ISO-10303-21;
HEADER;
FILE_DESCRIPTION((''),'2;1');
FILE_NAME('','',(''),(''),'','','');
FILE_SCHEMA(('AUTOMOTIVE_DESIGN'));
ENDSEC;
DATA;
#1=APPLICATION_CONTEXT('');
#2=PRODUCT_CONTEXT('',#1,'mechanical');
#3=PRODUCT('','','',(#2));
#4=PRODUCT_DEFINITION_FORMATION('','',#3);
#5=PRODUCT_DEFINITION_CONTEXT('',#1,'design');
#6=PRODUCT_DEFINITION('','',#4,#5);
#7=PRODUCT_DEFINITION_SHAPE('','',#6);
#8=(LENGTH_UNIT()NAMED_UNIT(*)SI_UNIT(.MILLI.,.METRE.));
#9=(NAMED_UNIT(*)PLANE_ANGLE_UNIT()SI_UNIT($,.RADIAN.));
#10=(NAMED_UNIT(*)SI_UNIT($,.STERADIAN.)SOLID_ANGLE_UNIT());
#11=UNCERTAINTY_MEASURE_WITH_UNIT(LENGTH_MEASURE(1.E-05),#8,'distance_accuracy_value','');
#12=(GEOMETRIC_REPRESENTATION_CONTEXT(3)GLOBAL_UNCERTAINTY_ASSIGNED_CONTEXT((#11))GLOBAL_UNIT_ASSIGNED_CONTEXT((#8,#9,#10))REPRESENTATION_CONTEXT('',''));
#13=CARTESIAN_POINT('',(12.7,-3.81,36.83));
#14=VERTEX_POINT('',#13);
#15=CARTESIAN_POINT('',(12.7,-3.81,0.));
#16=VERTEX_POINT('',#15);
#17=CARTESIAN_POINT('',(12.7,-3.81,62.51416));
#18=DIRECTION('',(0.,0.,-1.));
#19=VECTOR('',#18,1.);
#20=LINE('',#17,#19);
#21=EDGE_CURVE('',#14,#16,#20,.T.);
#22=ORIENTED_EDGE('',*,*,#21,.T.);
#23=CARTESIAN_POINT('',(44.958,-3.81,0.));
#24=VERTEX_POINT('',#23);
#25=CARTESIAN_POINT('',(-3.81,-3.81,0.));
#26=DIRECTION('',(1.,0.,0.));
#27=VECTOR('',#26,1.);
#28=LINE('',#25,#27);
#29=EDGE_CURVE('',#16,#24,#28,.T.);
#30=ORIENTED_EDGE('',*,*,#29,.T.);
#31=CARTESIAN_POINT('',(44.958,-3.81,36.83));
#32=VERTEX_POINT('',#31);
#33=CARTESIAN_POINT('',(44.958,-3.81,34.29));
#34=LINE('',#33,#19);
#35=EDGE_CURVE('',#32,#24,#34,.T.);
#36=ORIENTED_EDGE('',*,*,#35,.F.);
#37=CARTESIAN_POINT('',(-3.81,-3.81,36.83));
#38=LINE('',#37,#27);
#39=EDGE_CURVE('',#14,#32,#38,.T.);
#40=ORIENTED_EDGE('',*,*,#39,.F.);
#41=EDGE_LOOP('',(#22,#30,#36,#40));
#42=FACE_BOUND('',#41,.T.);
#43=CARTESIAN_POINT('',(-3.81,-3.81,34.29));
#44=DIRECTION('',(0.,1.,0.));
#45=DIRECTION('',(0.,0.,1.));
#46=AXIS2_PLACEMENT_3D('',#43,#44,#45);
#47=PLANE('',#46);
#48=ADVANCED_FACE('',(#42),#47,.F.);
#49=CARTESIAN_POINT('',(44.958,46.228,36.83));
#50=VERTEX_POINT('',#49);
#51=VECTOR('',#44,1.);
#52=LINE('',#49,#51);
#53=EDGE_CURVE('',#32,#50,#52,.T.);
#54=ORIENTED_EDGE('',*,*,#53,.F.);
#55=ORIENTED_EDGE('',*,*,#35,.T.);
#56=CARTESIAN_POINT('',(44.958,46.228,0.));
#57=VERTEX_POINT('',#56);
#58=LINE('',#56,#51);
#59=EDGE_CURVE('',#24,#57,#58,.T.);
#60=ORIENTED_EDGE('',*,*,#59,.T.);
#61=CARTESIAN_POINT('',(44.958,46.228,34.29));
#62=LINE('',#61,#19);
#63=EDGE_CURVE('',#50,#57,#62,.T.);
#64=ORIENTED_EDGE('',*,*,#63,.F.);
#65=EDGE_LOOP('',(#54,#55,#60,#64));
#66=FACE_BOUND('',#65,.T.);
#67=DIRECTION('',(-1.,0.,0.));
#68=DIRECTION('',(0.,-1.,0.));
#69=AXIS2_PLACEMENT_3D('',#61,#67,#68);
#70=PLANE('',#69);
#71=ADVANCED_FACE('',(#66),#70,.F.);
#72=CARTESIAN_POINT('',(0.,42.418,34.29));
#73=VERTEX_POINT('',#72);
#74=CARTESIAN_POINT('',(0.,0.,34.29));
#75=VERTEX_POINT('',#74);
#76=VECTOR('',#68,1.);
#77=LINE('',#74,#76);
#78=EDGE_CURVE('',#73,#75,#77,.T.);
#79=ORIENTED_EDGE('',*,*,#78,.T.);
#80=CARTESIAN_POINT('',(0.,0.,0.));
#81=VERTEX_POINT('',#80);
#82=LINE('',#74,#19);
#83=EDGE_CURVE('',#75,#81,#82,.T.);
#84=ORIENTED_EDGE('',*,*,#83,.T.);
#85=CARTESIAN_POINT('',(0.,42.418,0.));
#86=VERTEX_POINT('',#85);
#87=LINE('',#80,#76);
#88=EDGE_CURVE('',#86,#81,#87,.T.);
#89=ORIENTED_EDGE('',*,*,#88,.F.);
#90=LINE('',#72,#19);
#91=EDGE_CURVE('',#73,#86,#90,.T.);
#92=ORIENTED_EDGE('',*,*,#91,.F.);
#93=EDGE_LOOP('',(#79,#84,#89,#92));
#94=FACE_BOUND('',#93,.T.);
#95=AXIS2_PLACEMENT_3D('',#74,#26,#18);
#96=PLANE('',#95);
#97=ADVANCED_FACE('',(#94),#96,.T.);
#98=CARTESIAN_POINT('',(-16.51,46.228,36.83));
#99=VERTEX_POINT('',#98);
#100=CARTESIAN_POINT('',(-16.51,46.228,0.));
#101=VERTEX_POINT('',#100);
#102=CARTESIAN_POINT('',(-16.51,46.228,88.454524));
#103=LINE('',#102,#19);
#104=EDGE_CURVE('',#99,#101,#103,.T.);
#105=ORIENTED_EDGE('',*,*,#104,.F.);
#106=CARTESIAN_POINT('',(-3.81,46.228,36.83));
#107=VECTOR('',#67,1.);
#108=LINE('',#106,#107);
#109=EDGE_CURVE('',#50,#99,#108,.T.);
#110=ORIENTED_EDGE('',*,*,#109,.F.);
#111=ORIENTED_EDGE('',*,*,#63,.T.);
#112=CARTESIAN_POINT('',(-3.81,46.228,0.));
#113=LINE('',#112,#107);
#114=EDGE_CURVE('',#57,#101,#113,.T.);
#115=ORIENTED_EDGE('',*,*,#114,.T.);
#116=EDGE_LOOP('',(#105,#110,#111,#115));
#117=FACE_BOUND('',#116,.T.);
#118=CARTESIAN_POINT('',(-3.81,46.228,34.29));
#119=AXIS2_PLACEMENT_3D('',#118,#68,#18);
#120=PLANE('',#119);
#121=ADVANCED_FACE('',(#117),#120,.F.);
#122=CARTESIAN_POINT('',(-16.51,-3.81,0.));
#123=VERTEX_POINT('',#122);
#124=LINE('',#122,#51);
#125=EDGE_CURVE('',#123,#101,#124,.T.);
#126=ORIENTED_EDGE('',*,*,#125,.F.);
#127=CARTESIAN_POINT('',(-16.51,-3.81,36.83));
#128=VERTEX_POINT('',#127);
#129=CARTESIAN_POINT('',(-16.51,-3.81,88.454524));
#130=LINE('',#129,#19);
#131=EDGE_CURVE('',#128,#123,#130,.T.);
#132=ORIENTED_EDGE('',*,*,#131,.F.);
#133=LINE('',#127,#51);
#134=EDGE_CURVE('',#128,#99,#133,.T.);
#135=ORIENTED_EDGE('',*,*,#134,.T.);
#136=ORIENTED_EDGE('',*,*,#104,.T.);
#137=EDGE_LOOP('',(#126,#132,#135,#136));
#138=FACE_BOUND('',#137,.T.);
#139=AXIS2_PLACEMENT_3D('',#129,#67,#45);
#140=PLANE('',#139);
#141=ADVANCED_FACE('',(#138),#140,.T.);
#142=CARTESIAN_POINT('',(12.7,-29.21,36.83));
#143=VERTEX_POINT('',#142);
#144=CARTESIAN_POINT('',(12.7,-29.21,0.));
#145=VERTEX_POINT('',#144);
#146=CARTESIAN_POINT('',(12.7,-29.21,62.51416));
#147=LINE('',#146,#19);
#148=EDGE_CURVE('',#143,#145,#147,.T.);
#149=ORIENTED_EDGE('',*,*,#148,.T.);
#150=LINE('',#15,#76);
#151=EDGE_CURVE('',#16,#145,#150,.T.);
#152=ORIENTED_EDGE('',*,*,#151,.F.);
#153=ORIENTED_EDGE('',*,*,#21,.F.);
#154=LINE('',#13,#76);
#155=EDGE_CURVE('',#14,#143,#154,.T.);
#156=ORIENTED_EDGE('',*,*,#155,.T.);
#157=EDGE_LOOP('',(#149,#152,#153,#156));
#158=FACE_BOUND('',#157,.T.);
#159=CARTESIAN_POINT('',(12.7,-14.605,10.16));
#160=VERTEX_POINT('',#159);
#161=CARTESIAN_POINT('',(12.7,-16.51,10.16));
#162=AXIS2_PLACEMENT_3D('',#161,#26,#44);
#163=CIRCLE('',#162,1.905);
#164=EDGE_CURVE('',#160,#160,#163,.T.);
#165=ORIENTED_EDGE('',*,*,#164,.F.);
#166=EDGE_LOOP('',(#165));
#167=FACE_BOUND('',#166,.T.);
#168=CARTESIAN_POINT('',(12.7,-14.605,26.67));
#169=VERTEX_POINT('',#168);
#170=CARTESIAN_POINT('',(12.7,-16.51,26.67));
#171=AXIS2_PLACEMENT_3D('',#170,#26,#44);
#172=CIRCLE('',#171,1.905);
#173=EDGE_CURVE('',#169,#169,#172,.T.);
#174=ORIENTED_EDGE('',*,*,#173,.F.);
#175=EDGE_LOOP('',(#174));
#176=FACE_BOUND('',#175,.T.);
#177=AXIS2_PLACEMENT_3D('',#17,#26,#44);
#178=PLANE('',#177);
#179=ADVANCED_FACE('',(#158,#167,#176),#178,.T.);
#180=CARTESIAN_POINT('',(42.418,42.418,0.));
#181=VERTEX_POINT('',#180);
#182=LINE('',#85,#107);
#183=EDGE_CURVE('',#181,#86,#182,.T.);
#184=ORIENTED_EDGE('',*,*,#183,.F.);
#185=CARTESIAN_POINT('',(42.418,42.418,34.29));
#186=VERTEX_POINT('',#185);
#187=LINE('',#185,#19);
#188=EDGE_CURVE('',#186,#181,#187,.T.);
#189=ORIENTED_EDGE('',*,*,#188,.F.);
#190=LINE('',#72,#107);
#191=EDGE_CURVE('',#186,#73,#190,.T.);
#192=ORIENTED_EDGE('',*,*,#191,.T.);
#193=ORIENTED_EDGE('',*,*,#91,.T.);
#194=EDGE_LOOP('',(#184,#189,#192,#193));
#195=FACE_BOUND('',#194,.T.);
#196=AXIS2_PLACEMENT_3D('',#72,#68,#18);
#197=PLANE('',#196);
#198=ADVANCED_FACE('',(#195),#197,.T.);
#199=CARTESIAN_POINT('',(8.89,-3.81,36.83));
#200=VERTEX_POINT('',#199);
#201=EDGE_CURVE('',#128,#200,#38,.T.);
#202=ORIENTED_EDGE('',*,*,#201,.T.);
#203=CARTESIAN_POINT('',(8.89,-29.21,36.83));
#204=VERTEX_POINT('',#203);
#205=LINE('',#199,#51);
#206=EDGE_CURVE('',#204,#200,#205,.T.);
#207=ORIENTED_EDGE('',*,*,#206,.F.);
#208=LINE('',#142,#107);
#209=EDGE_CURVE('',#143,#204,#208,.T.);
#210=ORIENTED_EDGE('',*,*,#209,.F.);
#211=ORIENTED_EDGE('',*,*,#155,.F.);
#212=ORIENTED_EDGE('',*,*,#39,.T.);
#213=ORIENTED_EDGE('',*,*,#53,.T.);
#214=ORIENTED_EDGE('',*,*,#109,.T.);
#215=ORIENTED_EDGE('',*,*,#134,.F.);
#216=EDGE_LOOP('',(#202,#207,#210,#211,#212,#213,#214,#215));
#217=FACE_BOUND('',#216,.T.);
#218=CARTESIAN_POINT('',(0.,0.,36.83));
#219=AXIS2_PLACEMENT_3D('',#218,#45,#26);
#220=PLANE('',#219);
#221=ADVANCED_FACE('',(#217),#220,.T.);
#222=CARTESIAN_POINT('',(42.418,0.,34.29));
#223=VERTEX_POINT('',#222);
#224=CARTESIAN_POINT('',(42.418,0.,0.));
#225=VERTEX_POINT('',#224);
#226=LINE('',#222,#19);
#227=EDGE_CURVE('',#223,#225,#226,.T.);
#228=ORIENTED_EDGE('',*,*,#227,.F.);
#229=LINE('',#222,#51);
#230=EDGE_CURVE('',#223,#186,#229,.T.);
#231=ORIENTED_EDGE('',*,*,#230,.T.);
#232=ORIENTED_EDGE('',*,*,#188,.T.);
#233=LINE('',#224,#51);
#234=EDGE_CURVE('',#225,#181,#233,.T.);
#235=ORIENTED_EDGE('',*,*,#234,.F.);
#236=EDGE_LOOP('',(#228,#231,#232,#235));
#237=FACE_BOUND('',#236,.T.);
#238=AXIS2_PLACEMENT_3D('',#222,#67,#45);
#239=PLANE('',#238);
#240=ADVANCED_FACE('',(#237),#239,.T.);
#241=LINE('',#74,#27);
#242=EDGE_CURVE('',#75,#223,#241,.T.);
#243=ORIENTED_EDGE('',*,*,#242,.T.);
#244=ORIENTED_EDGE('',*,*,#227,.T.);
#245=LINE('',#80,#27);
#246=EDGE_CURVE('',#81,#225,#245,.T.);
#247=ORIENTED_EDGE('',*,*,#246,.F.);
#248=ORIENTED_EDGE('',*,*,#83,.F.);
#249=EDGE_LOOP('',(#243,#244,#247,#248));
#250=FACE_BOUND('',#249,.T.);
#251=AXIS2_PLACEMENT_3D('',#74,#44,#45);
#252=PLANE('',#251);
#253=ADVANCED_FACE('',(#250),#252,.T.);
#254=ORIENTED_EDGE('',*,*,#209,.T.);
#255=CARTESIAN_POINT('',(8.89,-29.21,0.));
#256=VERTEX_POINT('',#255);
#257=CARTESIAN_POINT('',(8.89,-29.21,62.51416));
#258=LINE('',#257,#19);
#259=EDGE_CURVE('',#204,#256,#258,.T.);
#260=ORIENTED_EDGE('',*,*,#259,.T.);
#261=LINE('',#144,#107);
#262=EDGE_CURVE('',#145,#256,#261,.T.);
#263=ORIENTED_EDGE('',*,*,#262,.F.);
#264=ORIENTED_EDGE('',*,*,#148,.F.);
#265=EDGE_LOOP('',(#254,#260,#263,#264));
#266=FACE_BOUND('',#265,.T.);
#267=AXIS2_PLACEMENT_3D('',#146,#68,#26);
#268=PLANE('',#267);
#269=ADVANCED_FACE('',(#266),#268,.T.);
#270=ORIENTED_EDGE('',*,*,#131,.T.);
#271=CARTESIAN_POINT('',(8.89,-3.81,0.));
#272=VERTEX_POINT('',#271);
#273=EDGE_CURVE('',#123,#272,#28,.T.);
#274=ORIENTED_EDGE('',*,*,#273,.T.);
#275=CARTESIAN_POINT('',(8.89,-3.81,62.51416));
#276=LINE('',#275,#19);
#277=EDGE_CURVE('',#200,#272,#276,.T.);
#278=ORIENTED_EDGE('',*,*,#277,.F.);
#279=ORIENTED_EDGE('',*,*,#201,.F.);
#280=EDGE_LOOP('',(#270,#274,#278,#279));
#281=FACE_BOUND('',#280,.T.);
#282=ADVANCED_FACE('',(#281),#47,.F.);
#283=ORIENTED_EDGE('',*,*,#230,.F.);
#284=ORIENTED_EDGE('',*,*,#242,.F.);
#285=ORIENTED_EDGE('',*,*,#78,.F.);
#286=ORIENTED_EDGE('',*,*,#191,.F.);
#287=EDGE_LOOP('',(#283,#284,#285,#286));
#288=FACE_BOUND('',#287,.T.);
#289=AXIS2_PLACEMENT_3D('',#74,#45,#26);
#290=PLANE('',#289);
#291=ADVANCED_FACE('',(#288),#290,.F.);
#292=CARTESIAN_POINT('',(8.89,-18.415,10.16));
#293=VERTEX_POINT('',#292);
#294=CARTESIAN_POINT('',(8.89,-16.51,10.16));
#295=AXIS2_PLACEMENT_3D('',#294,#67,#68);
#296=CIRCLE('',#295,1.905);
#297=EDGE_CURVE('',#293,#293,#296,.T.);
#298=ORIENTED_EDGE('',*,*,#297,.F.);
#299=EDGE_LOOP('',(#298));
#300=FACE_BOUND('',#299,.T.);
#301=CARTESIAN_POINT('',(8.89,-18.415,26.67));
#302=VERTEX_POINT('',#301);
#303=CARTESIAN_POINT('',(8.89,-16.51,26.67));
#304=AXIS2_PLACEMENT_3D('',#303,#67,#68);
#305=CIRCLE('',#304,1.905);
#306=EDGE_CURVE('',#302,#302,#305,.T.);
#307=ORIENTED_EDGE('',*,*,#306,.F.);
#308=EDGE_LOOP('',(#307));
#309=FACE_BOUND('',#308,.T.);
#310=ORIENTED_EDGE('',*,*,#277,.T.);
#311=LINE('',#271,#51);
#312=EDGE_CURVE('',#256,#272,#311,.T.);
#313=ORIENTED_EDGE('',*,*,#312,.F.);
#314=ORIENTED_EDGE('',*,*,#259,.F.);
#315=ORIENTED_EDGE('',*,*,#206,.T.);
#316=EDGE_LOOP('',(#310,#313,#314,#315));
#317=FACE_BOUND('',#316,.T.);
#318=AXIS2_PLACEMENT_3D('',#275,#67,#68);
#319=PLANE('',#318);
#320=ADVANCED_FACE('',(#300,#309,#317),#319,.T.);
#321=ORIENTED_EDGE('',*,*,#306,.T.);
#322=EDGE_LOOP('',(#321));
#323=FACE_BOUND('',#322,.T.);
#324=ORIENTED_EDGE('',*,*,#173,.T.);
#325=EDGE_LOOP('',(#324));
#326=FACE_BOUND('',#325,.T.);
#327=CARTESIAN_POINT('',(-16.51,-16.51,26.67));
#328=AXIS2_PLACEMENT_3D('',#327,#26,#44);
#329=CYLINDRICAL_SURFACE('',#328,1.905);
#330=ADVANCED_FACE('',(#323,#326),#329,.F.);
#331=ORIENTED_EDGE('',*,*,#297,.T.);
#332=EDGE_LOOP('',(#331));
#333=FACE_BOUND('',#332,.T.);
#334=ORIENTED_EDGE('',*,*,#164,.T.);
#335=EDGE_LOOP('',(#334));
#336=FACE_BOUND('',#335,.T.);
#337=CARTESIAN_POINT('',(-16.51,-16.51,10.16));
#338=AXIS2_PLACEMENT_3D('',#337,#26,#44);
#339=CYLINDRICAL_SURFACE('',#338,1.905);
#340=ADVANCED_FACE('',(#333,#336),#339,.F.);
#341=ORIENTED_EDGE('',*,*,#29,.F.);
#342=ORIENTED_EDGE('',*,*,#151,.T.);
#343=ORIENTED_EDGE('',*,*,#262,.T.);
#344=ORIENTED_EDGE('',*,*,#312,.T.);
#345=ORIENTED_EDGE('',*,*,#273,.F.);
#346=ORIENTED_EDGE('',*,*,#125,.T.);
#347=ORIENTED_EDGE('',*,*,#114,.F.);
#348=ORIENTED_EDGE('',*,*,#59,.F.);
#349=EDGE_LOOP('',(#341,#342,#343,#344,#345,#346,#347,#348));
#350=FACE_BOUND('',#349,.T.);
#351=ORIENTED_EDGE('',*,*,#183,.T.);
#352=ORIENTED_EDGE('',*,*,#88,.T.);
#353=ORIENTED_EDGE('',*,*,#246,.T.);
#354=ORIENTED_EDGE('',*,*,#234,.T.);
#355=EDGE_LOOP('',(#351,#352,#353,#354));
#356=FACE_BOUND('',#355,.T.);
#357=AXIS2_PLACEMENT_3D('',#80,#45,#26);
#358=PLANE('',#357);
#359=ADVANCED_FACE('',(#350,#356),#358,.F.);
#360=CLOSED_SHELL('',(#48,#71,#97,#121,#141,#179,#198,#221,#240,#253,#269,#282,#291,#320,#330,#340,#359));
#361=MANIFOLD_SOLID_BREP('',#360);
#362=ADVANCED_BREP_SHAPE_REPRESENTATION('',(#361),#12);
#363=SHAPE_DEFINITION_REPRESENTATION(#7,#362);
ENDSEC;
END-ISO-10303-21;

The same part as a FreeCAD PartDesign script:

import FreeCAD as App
import Part
import Sketcher

V = App.Vector
Q = App.Units.Quantity


def add_polygon(sketch, points):
    """Adds a closed chain of lines whose ends are joined by coincident constraints."""
    first, n = sketch.GeometryCount, len(points)
    for a, b in zip(points, points[1:] + points[:1]):
        sketch.addGeometry(Part.LineSegment(App.Vector(*a, 0), App.Vector(*b, 0)), False)
    for i in range(n):
        sketch.addConstraint(Sketcher.Constraint("Coincident", first + i, 2, first + (i + 1) % n, 1))

doc = App.newDocument("Part")
body = doc.addObject("PartDesign::Body", "Body")

# Sketch on XY plane
sketch1 = doc.addObject("Sketcher::SketchObject", "Sketch")
body.addObject(sketch1)
sketch1.AttachmentSupport = (doc.XY_Plane, [""])
sketch1.MapMode = "FlatFace"
add_polygon(sketch1, [(-3.81, 46.228), (-3.81, -3.81), (44.958, -3.81), (44.958, 46.228)])  # lines 0-3
add_polygon(sketch1, [(42.418, 0), (0, 0), (0, 42.418), (42.418, 42.418)])  # lines 4-7
sketch1.addConstraint([
    Sketcher.Constraint("Vertical", 0),
    Sketcher.Constraint("Horizontal", 1),
    Sketcher.Constraint("Vertical", 2),
    Sketcher.Constraint("Horizontal", 3),
    Sketcher.Constraint("Horizontal", 4),
    Sketcher.Constraint("Vertical", 5),
    Sketcher.Constraint("Horizontal", 6),
    Sketcher.Constraint("Vertical", 7),
    Sketcher.Constraint("Coincident", 4, 2, -1, 1),
    Sketcher.Constraint("Equal", 6, 5),
    Sketcher.Constraint("DistanceX", 1, 1, 1, 2, Q("1.92 in")),
    Sketcher.Constraint("DistanceX", 4, 2, 4, 1, Q("1.67 in")),
    Sketcher.Constraint("DistanceY", 0, 2, 0, 1, Q("1.97 in")),
    Sketcher.Constraint("DistanceX", 6, 2, 2, 2, Q("0.1 in")),
    Sketcher.Constraint("DistanceY", 0, 2, -1, 1, Q("0.15 in")),
])
pad1 = doc.addObject("PartDesign::Pad", "Pad")
body.addObject(pad1)
pad1.Profile = sketch1
pad1.Length = Q("1.35 in")

# Sketch on XY plane
sketch2 = doc.addObject("Sketcher::SketchObject", "Sketch001")
body.addObject(sketch2)
sketch2.AttachmentSupport = (doc.XY_Plane, [""])
sketch2.MapMode = "FlatFace"
sketch2.AttachmentOffset = App.Placement(V(0, 0, 1.35 * 25.4), App.Rotation())
add_polygon(sketch2, [(-3.81, 46.228), (-3.81, -3.81), (44.958, -3.81), (44.958, 46.228)])  # lines 0-3
sketch2.addConstraint([
    Sketcher.Constraint("Vertical", 0),
    Sketcher.Constraint("Horizontal", 1),
    Sketcher.Constraint("Vertical", 2),
    Sketcher.Constraint("Horizontal", 3),
    Sketcher.Constraint("DistanceX", 1, 1, 1, 2, Q("1.92 in")),
    Sketcher.Constraint("DistanceY", 0, 2, 0, 1, Q("1.97 in")),
    Sketcher.Constraint("DistanceX", 0, 2, -1, 1, Q("0.15 in")),
    Sketcher.Constraint("DistanceY", 0, 2, -1, 1, Q("0.15 in")),
])
pad2 = doc.addObject("PartDesign::Pad", "Pad001")
body.addObject(pad2)
pad2.Profile = sketch2
pad2.Length = Q("0.1 in")

# Sketch on XY plane
sketch3 = doc.addObject("Sketcher::SketchObject", "Sketch002")
body.addObject(sketch3)
sketch3.AttachmentSupport = (doc.XY_Plane, [""])
sketch3.MapMode = "FlatFace"
add_polygon(sketch3, [(12.7, -3.81), (12.7, -29.21), (8.89, -29.21), (8.89, -3.81)])  # lines 0-3
sketch3.addConstraint([
    Sketcher.Constraint("Vertical", 0),
    Sketcher.Constraint("Horizontal", 1),
    Sketcher.Constraint("Vertical", 2),
    Sketcher.Constraint("Horizontal", 3),
    Sketcher.Constraint("DistanceY", 0, 2, 0, 1, Q("1 in")),
    Sketcher.Constraint("DistanceX", 1, 2, 1, 1, Q("0.15 in")),
    Sketcher.Constraint("DistanceX", -1, 1, 0, 2, Q("0.5 in")),
    Sketcher.Constraint("DistanceY", 0, 2, -1, 1, Q("1.15 in")),
])
pad3 = doc.addObject("PartDesign::Pad", "Pad002")
body.addObject(pad3)
pad3.Profile = sketch3
pad3.Length = Q("1.45 in")

# Sketch on XY plane
sketch4 = doc.addObject("Sketcher::SketchObject", "Sketch003")
body.addObject(sketch4)
sketch4.AttachmentSupport = (doc.XY_Plane, [""])
sketch4.MapMode = "FlatFace"
add_polygon(sketch4, [(-3.81, 46.228), (-3.81, -3.81), (-16.51, -3.81), (-16.51, 46.228)])  # lines 0-3
sketch4.addConstraint([
    Sketcher.Constraint("Vertical", 0),
    Sketcher.Constraint("Horizontal", 1),
    Sketcher.Constraint("Vertical", 2),
    Sketcher.Constraint("Horizontal", 3),
    Sketcher.Constraint("DistanceX", 1, 2, 1, 1, Q("0.5 in")),
    Sketcher.Constraint("DistanceY", 0, 2, 0, 1, Q("1.97 in")),
    Sketcher.Constraint("DistanceX", 0, 2, -1, 1, Q("0.15 in")),
    Sketcher.Constraint("DistanceY", 0, 2, -1, 1, Q("0.15 in")),
])
pad4 = doc.addObject("PartDesign::Pad", "Pad003")
body.addObject(pad4)
pad4.Profile = sketch4
pad4.Length = Q("1.45 in")

# Sketch on YZ plane
sketch5 = doc.addObject("Sketcher::SketchObject", "Sketch004")
body.addObject(sketch5)
sketch5.AttachmentSupport = (doc.YZ_Plane, [""])
sketch5.MapMode = "FlatFace"
sketch5.AttachmentOffset = App.Placement(V(0, 0, 0.5 * 25.4), App.Rotation())
sketch5.addGeometry([
    Part.Circle(V(-16.51, 26.67, 0), V(0, 0, 1), 1.905),
    Part.Circle(V(-16.51, 10.16, 0), V(0, 0, 1), 1.905),
], False)
sketch5.addConstraint([
    Sketcher.Constraint("Equal", 0, 1),
    Sketcher.Constraint("Vertical", 0, 3, 1, 3),
    Sketcher.Constraint("Diameter", 0, Q("0.15 in")),
    Sketcher.Constraint("DistanceY", -1, 1, 1, 3, Q("0.4 in")),
    Sketcher.Constraint("DistanceX", 0, 3, -1, 1, Q("0.65 in")),
    Sketcher.Constraint("DistanceY", -1, 1, 0, 3, Q("1.05 in")),
])
pocket1 = doc.addObject("PartDesign::Pocket", "Pocket")
body.addObject(pocket1)
pocket1.Profile = sketch5
pocket1.Type = "ThroughAll"

doc.recompute()
